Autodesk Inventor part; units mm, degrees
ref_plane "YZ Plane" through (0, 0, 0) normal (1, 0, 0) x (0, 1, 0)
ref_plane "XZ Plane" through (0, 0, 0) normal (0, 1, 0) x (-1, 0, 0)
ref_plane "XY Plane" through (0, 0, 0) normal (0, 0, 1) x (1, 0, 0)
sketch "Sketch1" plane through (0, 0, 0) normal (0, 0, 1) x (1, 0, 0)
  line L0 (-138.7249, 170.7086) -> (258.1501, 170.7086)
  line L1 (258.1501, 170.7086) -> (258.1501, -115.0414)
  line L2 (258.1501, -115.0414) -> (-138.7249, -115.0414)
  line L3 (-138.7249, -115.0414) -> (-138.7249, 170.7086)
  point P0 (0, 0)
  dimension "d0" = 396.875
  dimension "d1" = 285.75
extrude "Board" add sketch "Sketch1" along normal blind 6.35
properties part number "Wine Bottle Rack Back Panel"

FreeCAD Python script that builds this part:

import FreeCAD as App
import Part
import Sketcher
Q = App.Units.Quantity


def add_polygon(sketch, points):
    """Adds a closed chain of lines whose ends are joined by coincident constraints."""
    first, n = sketch.GeometryCount, len(points)
    for a, b in zip(points, points[1:] + points[:1]):
        sketch.addGeometry(Part.LineSegment(App.Vector(*a, 0), App.Vector(*b, 0)), False)
    for i in range(n):
        sketch.addConstraint(Sketcher.Constraint("Coincident", first + i, 2, first + (i + 1) % n, 1))

doc = App.newDocument("Part")
body = doc.addObject("PartDesign::Body", "Body")

sketch1 = body.newObject("Sketcher::SketchObject", "Sketch")
sketch1.AttachmentSupport = (doc.getObject("XY_Plane"), [""])
sketch1.MapMode = "FlatFace"
add_polygon(sketch1, [(258, 171), (-139, 171), (-139, -115), (258, -115)])
sketch1.addConstraint([
    Sketcher.Constraint("Horizontal", 0),
    Sketcher.Constraint("Vertical", 1),
    Sketcher.Constraint("Horizontal", 2),
    Sketcher.Constraint("Vertical", 3),
    Sketcher.Constraint("DistanceY", 1, 2, 1, 1, Q("11.25 in")),
    Sketcher.Constraint("DistanceX", 0, 2, 0, 1, Q("15.625 in")),
    Sketcher.Constraint("DistanceX", 0, 2, -1, 1, Q("5.4616 in")),
    Sketcher.Constraint("DistanceY", -1, 1, 0, 2, Q("6.7208 in")),
])
pad1 = body.newObject("PartDesign::Pad", "Pad")
pad1.Profile = sketch1
pad1.Length = Q("0.25 in")

doc.recompute()
